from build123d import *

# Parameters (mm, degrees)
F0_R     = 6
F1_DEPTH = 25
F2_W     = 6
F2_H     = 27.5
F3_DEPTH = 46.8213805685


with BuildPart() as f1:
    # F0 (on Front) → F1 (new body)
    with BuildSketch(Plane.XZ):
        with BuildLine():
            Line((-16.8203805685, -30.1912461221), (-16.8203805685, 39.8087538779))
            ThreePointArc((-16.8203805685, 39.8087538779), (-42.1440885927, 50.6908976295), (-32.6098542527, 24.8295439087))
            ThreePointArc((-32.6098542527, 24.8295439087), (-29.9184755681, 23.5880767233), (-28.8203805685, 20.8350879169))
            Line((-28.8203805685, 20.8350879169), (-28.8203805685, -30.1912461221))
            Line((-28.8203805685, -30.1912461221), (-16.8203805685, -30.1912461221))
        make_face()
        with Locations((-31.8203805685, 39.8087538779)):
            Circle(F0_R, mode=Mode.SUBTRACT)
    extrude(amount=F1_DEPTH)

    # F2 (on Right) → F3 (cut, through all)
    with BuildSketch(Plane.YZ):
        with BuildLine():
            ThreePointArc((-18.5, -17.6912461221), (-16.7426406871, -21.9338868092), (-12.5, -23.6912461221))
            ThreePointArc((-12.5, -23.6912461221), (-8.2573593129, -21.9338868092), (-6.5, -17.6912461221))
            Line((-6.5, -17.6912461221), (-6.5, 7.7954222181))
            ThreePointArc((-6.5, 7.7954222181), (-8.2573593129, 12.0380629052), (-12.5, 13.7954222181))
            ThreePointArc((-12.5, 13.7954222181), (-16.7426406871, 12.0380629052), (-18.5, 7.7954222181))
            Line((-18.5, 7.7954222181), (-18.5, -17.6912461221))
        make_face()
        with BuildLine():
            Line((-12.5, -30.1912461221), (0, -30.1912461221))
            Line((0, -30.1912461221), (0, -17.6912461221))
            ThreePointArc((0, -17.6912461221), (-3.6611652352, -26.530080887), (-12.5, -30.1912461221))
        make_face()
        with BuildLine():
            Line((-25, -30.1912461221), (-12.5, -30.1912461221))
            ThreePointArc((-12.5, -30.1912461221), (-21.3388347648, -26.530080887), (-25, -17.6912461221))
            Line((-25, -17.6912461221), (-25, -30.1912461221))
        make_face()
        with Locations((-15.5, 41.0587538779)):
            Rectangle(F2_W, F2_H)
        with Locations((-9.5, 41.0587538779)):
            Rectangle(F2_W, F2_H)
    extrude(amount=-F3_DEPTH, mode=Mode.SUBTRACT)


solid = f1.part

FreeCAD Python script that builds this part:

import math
import FreeCAD as App
import Part
import Sketcher
from FreeCAD import Vector
Q = App.Units.Quantity

doc = App.newDocument("Part")
params = doc.addObject("Spreadsheet::Sheet", "Params")
for row, (alias, value) in enumerate([
    ("sketch1_diameter", "12 mm"),
    ("sketch1_radius", "15 mm"),
    ("sketch1_radius2", "4 mm"),
    ("sketch1_width", "12 mm"),
    ("sketch1_height", "70 mm"),
    ("pad1_length", "25 mm"),
    ("sketch2_radius", "6 mm"),
    ("sketch2_radius2", "12.5 mm"),
    ("sketch2_height", "27.5 mm"),
], start=1):
    params.set(f"A{row}", alias)
    params.set(f"B{row}", "=" + value)
    params.setAlias(f"B{row}", alias)

body = doc.addObject("PartDesign::Body", "Body")

sketch1 = doc.addObject("Sketcher::SketchObject", "Sketch")
body.addObject(sketch1)
sketch1.AttachmentSupport = (doc.XZ_Plane, [""])
sketch1.MapMode = "FlatFace"
sketch1.addGeometry([
    Part.LineSegment(Vector(-16.8, -30.2, 0), Vector(-16.8, 39.8, 0)),
    Part.ArcOfCircle(Part.Circle(Vector(-31.8, 39.8, 0), Vector(0, 0, 1), 15), math.radians(0), math.radians(267)),
    Part.ArcOfCircle(Part.Circle(Vector(-32.8, 20.8, 0), Vector(0, 0, 1), 4), math.radians(0), math.radians(87)),
    Part.LineSegment(Vector(-28.8, 20.8, 0), Vector(-28.8, -30.2, 0)),
    Part.LineSegment(Vector(-28.8, -30.2, 0), Vector(-16.8, -30.2, 0)),
    Part.Circle(Vector(-31.8, 39.8, 0), Vector(0, 0, 1), 6),
], False)
sketch1.addConstraint([
    Sketcher.Constraint("Tangent", 0, 2, 1, 1),
    Sketcher.Constraint("Tangent", 1, 2, 2, 2),
    Sketcher.Constraint("Tangent", 2, 1, 3, 1),
    Sketcher.Constraint("Coincident", 3, 2, 4, 1),
    Sketcher.Constraint("Coincident", 4, 2, 0, 1),
    Sketcher.Constraint("Vertical", 0),
    Sketcher.Constraint("Vertical", 3),
    Sketcher.Constraint("Horizontal", 4),
    Sketcher.Constraint("Coincident", 5, 3, 1, 3),
    Sketcher.Constraint("Diameter", 5, Q("12 mm")),
    Sketcher.Constraint("Radius", 1, Q("15 mm")),
    Sketcher.Constraint("Radius", 2, Q("4 mm")),
    Sketcher.Constraint("DistanceX", 4, 1, 4, 2, Q("12 mm")),
    Sketcher.Constraint("DistanceY", 0, 1, 0, 2, Q("70 mm")),
    Sketcher.Constraint("DistanceX", 1, 3, -1, 1, Q("31.820381 mm")),
    Sketcher.Constraint("DistanceY", -1, 1, 1, 3, Q("39.808754 mm")),
])
sketch1.setExpression("Constraints[9]", "Params.sketch1_diameter")
sketch1.setExpression("Constraints[10]", "Params.sketch1_radius")
sketch1.setExpression("Constraints[11]", "Params.sketch1_radius2")
sketch1.setExpression("Constraints[12]", "Params.sketch1_width")
sketch1.setExpression("Constraints[13]", "Params.sketch1_height")
pad1 = doc.addObject("PartDesign::Pad", "Pad")
body.addObject(pad1)
pad1.Profile = sketch1
pad1.setExpression("Length", "Params.pad1_length")

sketch2 = doc.addObject("Sketcher::SketchObject", "Sketch001")
body.addObject(sketch2)
sketch2.AttachmentSupport = (doc.YZ_Plane, [""])
sketch2.MapMode = "FlatFace"
sketch2.addGeometry([
    Part.ArcOfCircle(Part.Circle(Vector(-12, -18, 0), Vector(0, 0, 1), 6), math.radians(180), math.radians(270)),
    Part.ArcOfCircle(Part.Circle(Vector(-12, -18, 0), Vector(0, 0, 1), 6), math.radians(-90), math.radians(0)),
    Part.LineSegment(Vector(-6, -18, 0), Vector(-6, 8, 0)),
    Part.ArcOfCircle(Part.Circle(Vector(-12, 8, 0), Vector(0, 0, 1), 6), math.radians(0), math.radians(90)),
    Part.ArcOfCircle(Part.Circle(Vector(-12, 8, 0), Vector(0, 0, 1), 6), math.radians(90), math.radians(180)),
    Part.LineSegment(Vector(-18, 8, 0), Vector(-18, -18, 0)),
    Part.LineSegment(Vector(-12, -30, 0), Vector(0, -30, 0)),
    Part.LineSegment(Vector(0, -30, 0), Vector(0, -18, 0)),
    Part.ArcOfCircle(Part.Circle(Vector(-12, -18, 0), Vector(0, 0, 1), 12), math.radians(-90), math.radians(0)),
    Part.LineSegment(Vector(-25, -30, 0), Vector(-12, -30, 0)),
    Part.ArcOfCircle(Part.Circle(Vector(-12, -18, 0), Vector(0, 0, 1), 12), math.radians(180), math.radians(270)),
    Part.LineSegment(Vector(-25, -18, 0), Vector(-25, -30, 0)),
    Part.LineSegment(Vector(-18, 55, 0), Vector(-18, 27, 0)),
    Part.LineSegment(Vector(-18, 27, 0), Vector(-6, 27, 0)),
    Part.LineSegment(Vector(-6, 27, 0), Vector(-6, 55, 0)),
    Part.LineSegment(Vector(-6, 55, 0), Vector(-18, 55, 0)),
], False)
sketch2.addConstraint([
    Sketcher.Constraint("Tangent", 0, 2, 1, 1),
    Sketcher.Constraint("Tangent", 1, 2, 2, 1),
    Sketcher.Constraint("Tangent", 2, 2, 3, 1),
    Sketcher.Constraint("Tangent", 3, 2, 4, 1),
    Sketcher.Constraint("Tangent", 4, 2, 5, 1),
    Sketcher.Constraint("Tangent", 5, 2, 0, 1),
    Sketcher.Constraint("Coincident", 6, 2, 7, 1),
    Sketcher.Constraint("Tangent", 7, 2, 8, 2),
    Sketcher.Constraint("Tangent", 8, 1, 6, 1),
    Sketcher.Constraint("Tangent", 9, 2, 10, 2),
    Sketcher.Constraint("Tangent", 10, 1, 11, 1),
    Sketcher.Constraint("Coincident", 11, 2, 9, 1),
    Sketcher.Constraint("Coincident", 12, 2, 13, 1),
    Sketcher.Constraint("Coincident", 13, 2, 14, 1),
    Sketcher.Constraint("Coincident", 14, 2, 15, 1),
    Sketcher.Constraint("Coincident", 15, 2, 12, 1),
    Sketcher.Constraint("Vertical", 2),
    Sketcher.Constraint("Vertical", 5),
    Sketcher.Constraint("Horizontal", 6),
    Sketcher.Constraint("Vertical", 7),
    Sketcher.Constraint("Horizontal", 9),
    Sketcher.Constraint("Vertical", 11),
    Sketcher.Constraint("Vertical", 12),
    Sketcher.Constraint("Horizontal", 13),
    Sketcher.Constraint("Vertical", 14),
    Sketcher.Constraint("Horizontal", 15),
    Sketcher.Constraint("Coincident", 8, 3, 0, 3),
    Sketcher.Constraint("Coincident", 10, 3, 0, 3),
    Sketcher.Constraint("Equal", 0, 1),
    Sketcher.Constraint("Equal", 1, 3),
    Sketcher.Constraint("Equal", 8, 10),
    Sketcher.Constraint("PointOnObject", 6, 2, -2),
    Sketcher.Constraint("Vertical", 10, 3, 0, 2),
    Sketcher.Constraint("Vertical", 0, 2, 3, 2),
    Sketcher.Constraint("Vertical", 5, 2, 12, 2),
    Sketcher.Constraint("Vertical", 2, 2, 13, 2),
    Sketcher.Constraint("Radius", 0, Q("6 mm")),
    Sketcher.Constraint("Radius", 8, Q("12.5 mm")),
    Sketcher.Constraint("DistanceY", 12, 2, 12, 1, Q("27.5 mm")),
    Sketcher.Constraint("DistanceY", 2, 1, 2, 2, Q("25.486668 mm")),
    Sketcher.Constraint("DistanceY", 3, 2, 12, 2, Q("13.513332 mm")),
    Sketcher.Constraint("DistanceY", 0, 3, -1, 1, Q("17.691246 mm")),
])
sketch2.setExpression("Constraints[36]", "Params.sketch2_radius")
sketch2.setExpression("Constraints[37]", "Params.sketch2_radius2")
sketch2.setExpression("Constraints[38]", "Params.sketch2_height")
pocket1 = doc.addObject("PartDesign::Pocket", "Pocket")
body.addObject(pocket1)
pocket1.Profile = sketch2
pocket1.Type = "ThroughAll"

doc.recompute()
